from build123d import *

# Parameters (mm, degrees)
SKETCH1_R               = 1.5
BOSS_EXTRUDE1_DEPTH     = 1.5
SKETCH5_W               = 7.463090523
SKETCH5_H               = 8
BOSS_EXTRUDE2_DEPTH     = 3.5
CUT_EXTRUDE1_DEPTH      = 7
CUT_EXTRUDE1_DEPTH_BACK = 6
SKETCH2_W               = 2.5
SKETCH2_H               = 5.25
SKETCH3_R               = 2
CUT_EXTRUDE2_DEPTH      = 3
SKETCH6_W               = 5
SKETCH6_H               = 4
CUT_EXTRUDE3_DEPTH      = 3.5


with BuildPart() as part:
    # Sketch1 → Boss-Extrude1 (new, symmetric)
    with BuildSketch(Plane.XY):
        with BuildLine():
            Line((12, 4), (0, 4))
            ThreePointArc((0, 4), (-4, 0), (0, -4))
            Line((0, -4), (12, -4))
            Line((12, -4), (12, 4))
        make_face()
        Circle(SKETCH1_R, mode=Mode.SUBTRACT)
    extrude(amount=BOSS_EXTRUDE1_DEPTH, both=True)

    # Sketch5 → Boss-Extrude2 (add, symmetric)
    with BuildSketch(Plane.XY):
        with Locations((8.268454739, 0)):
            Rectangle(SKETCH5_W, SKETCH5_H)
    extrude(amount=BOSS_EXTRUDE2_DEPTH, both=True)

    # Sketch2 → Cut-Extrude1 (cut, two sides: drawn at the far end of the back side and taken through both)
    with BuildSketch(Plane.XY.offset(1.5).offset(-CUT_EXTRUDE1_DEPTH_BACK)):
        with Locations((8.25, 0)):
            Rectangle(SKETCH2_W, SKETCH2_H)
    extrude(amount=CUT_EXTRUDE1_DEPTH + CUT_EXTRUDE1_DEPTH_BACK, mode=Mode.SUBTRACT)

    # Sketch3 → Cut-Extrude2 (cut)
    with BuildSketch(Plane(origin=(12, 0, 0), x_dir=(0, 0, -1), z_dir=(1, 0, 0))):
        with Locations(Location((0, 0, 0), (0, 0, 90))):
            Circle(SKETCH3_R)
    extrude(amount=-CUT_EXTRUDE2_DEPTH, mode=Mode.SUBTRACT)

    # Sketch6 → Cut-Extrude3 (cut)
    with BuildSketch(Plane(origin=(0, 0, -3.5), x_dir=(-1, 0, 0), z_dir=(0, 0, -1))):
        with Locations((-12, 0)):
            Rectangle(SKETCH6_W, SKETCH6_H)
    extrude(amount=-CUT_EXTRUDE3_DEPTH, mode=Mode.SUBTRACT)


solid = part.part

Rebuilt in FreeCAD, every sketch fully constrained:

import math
import FreeCAD as App
import Part
import Sketcher
from FreeCAD import Vector


def add_polygon(sketch, points):
    """Adds a closed chain of lines whose ends are joined by coincident constraints."""
    first, n = sketch.GeometryCount, len(points)
    for a, b in zip(points, points[1:] + points[:1]):
        sketch.addGeometry(Part.LineSegment(App.Vector(*a, 0), App.Vector(*b, 0)), False)
    for i in range(n):
        sketch.addConstraint(Sketcher.Constraint("Coincident", first + i, 2, first + (i + 1) % n, 1))

doc = App.newDocument("Part")
body = doc.addObject("PartDesign::Body", "Body")

# Sketch on XY plane
sketch1 = body.newObject("Sketcher::SketchObject", "Sketch")
sketch1.AttachmentSupport = (doc.getObject("XY_Plane"), [""])
sketch1.MapMode = "FlatFace"
sketch1.addGeometry([
    Part.LineSegment(Vector(12, 4, 0), Vector(0, 4, 0)),  # 0
    Part.ArcOfCircle(Part.Circle(Vector(0, 0, 0), Vector(0, 0, 1), 4), math.radians(90), math.radians(270)),  # 1
    Part.LineSegment(Vector(0, -4, 0), Vector(12, -4, 0)),  # 2
    Part.LineSegment(Vector(12, -4, 0), Vector(12, 4, 0)),  # 3
    Part.Circle(Vector(0, 0, 0), Vector(0, 0, 1), 1.5),  # 4
], False)
sketch1.addConstraint([
    Sketcher.Constraint("Tangent", 0, 2, 1, 1),
    Sketcher.Constraint("Tangent", 1, 2, 2, 1),
    Sketcher.Constraint("Coincident", 2, 2, 3, 1),
    Sketcher.Constraint("Coincident", 3, 2, 0, 1),
    Sketcher.Constraint("Horizontal", 0),
    Sketcher.Constraint("Horizontal", 2),
    Sketcher.Constraint("Vertical", 3),
    Sketcher.Constraint("Coincident", 1, 3, -1, 1),
    Sketcher.Constraint("Coincident", 4, 3, -1, 1),
    Sketcher.Constraint("Diameter", 4, 3.0),
    Sketcher.Constraint("Radius", 1, 4.0),
    Sketcher.Constraint("DistanceX", 0, 2, 0, 1, 12.0),
])
pad1 = body.newObject("PartDesign::Pad", "Pad")
pad1.Profile = sketch1
pad1.Length = 3
pad1.Midplane = True

# Sketch on XY plane
sketch2 = body.newObject("Sketcher::SketchObject", "Sketch001")
sketch2.AttachmentSupport = (doc.getObject("XY_Plane"), [""])
sketch2.MapMode = "FlatFace"
add_polygon(sketch2, [(5, 4), (5, -4), (12, -4), (12, 4)])  # lines 0-3
sketch2.addConstraint([
    Sketcher.Constraint("Vertical", 0),
    Sketcher.Constraint("Horizontal", 1),
    Sketcher.Constraint("Vertical", 2),
    Sketcher.Constraint("Horizontal", 3),
    Sketcher.Constraint("DistanceY", 0, 2, 0, 1, 8.0),
    Sketcher.Constraint("DistanceY", 0, 2, -1, 1, 4.0),
    Sketcher.Constraint("DistanceX", -1, 1, 1, 2, 12.0),
    Sketcher.Constraint("DistanceX", 1, 1, 1, 2, 7.463091),
])
pad2 = body.newObject("PartDesign::Pad", "Pad001")
pad2.Profile = sketch2
pad2.Length = 7
pad2.Midplane = True

# Sketch on XY plane
sketch3 = body.newObject("Sketcher::SketchObject", "Sketch002")
sketch3.AttachmentSupport = (doc.getObject("XY_Plane"), [""])
sketch3.MapMode = "FlatFace"
sketch3.AttachmentOffset = App.Placement(Vector(0, 0, 1.5), App.Rotation())
add_polygon(sketch3, [(7, 2.6), (7, -2.6), (9.5, -2.6), (9.5, 2.6)])  # lines 0-3
sketch3.addConstraint([
    Sketcher.Constraint("Vertical", 0),
    Sketcher.Constraint("Horizontal", 1),
    Sketcher.Constraint("Vertical", 2),
    Sketcher.Constraint("Horizontal", 3),
    Sketcher.Constraint("DistanceX", 1, 1, 1, 2, 2.5),
    Sketcher.Constraint("DistanceX", -1, 1, 0, 2, 7.0),
    Sketcher.Constraint("DistanceY", 0, 2, 0, 1, 5.25),
    Sketcher.Constraint("DistanceY", 0, 2, -1, 1, 2.625),
])
pocket1 = body.newObject("PartDesign::Pocket", "Pocket")
pocket1.Profile = sketch3
pocket1.Type = "ThroughAll"
pocket1.Midplane = True

# Sketch on YZ plane
sketch4 = body.newObject("Sketcher::SketchObject", "Sketch003")
sketch4.AttachmentSupport = (doc.getObject("YZ_Plane"), [""])
sketch4.MapMode = "FlatFace"
sketch4.AttachmentOffset = App.Placement(Vector(0, 0, 12), App.Rotation())
sketch4.addGeometry(Part.Circle(Vector(0, 0, 0), Vector(0, 0, 1), 2), False)
sketch4.addConstraint([
    Sketcher.Constraint("Coincident", 0, 3, -1, 1),
    Sketcher.Constraint("Diameter", 0, 4.0),
])
pocket2 = body.newObject("PartDesign::Pocket", "Pocket001")
pocket2.Profile = sketch4
pocket2.Length = 3

# Sketch on XY plane
sketch5 = body.newObject("Sketcher::SketchObject", "Sketch004")
sketch5.AttachmentSupport = (doc.getObject("XY_Plane"), [""])
sketch5.MapMode = "FlatFace"
sketch5.AttachmentOffset = App.Placement(Vector(0, 0, -3.5), App.Rotation())
add_polygon(sketch5, [(14.5, 2), (14.5, -2), (9.5, -2), (9.5, 2)])  # lines 0-3
sketch5.addConstraint([
    Sketcher.Constraint("Vertical", 0),
    Sketcher.Constraint("Horizontal", 1),
    Sketcher.Constraint("Vertical", 2),
    Sketcher.Constraint("Horizontal", 3),
    Sketcher.Constraint("DistanceX", 1, 2, 1, 1, 5.0),
    Sketcher.Constraint("DistanceY", 0, 2, 0, 1, 4.0),
    Sketcher.Constraint("DistanceY", 0, 2, -1, 1, 2.0),
    Sketcher.Constraint("DistanceX", -1, 1, 0, 2, 14.5),
])
pocket3 = body.newObject("PartDesign::Pocket", "Pocket002")
pocket3.Profile = sketch5
pocket3.Length = 3.5
pocket3.Reversed = True

doc.recompute()
